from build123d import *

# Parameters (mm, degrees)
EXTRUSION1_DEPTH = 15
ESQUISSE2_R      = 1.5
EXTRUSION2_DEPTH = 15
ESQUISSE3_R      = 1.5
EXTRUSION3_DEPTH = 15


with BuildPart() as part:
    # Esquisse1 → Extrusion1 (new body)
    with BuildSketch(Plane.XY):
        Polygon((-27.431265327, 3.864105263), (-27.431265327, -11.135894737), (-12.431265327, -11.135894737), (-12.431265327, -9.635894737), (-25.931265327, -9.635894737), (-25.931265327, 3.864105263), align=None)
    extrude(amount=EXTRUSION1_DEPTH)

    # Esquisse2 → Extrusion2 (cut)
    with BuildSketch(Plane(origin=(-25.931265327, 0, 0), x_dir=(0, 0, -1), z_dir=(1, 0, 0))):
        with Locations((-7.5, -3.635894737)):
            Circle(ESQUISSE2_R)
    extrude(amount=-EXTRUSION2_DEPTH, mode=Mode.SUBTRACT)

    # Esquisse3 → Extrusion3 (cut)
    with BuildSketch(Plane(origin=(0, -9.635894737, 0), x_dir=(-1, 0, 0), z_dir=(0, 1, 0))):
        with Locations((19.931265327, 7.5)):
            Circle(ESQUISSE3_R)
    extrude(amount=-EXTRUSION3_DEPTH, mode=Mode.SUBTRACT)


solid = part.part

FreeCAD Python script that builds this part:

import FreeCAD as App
import Part
import Sketcher

doc = App.newDocument("Part")
body = doc.addObject("PartDesign::Body", "Body")

sketch1 = body.newObject("Sketcher::SketchObject", "Sketch")
sketch1.AttachmentSupport = (doc.getObject("XY_Plane"), [""])
sketch1.MapMode = "FlatFace"
sketch1.addGeometry([
    Part.LineSegment(App.Vector(-27.4, 3.9, 0), App.Vector(-27.4, -11.1, 0)),
    Part.LineSegment(App.Vector(-27.4, -11.1, 0), App.Vector(-12.4, -11.1, 0)),
    Part.LineSegment(App.Vector(-12.4, -11.1, 0), App.Vector(-12.4, -9.6, 0)),
    Part.LineSegment(App.Vector(-12.4, -9.6, 0), App.Vector(-25.9, -9.6, 0)),
    Part.LineSegment(App.Vector(-25.9, -9.6, 0), App.Vector(-25.9, 3.9, 0)),
    Part.LineSegment(App.Vector(-25.9, 3.9, 0), App.Vector(-27.4, 3.9, 0)),
], False)
sketch1.addConstraint([
    Sketcher.Constraint("Coincident", 0, 2, 1, 1),
    Sketcher.Constraint("Coincident", 1, 2, 2, 1),
    Sketcher.Constraint("Coincident", 2, 2, 3, 1),
    Sketcher.Constraint("Coincident", 3, 2, 4, 1),
    Sketcher.Constraint("Coincident", 4, 2, 5, 1),
    Sketcher.Constraint("Coincident", 5, 2, 0, 1),
    Sketcher.Constraint("Vertical", 0),
    Sketcher.Constraint("Horizontal", 1),
    Sketcher.Constraint("Vertical", 2),
    Sketcher.Constraint("Horizontal", 3),
    Sketcher.Constraint("Vertical", 4),
    Sketcher.Constraint("Horizontal", 5),
    Sketcher.Constraint("Equal", 1, 0),
    Sketcher.Constraint("Equal", 5, 2),
    Sketcher.Constraint("DistanceX", 1, 1, 1, 2, 15.0),
    Sketcher.Constraint("DistanceX", 3, 2, 3, 1, 13.5),
    Sketcher.Constraint("DistanceX", 0, 2, -1, 1, 27.431265),
    Sketcher.Constraint("DistanceY", 0, 2, -1, 1, 11.135895),
])
pad1 = body.newObject("PartDesign::Pad", "Pad")
pad1.Profile = sketch1
pad1.Length = 15

sketch2 = body.newObject("Sketcher::SketchObject", "Sketch001")
sketch2.AttachmentSupport = (doc.getObject("YZ_Plane"), [""])
sketch2.MapMode = "FlatFace"
sketch2.AttachmentOffset = App.Placement(App.Vector(0, 0, -25.931265), App.Rotation())
sketch2.addGeometry(Part.Circle(App.Vector(-3.6, 7.5, 0), App.Vector(0, 0, 1), 1.5), False)
sketch2.addConstraint([
    Sketcher.Constraint("Diameter", 0, 3.0),
    Sketcher.Constraint("DistanceY", -1, 1, 0, 3, 7.5),
    Sketcher.Constraint("DistanceX", 0, 3, -1, 1, 3.635895),
])
pocket1 = body.newObject("PartDesign::Pocket", "Pocket")
pocket1.Profile = sketch2
pocket1.Length = 15

sketch3 = body.newObject("Sketcher::SketchObject", "Sketch002")
sketch3.AttachmentSupport = (doc.getObject("XZ_Plane"), [""])
sketch3.MapMode = "FlatFace"
sketch3.AttachmentOffset = App.Placement(App.Vector(0, 0, 9.635895), App.Rotation())
sketch3.addGeometry(Part.Circle(App.Vector(-19.9, 7.5, 0), App.Vector(0, 0, 1), 1.5), False)
sketch3.addConstraint([
    Sketcher.Constraint("Diameter", 0, 3.0),
    Sketcher.Constraint("DistanceY", -1, 1, 0, 3, 7.5),
    Sketcher.Constraint("DistanceX", 0, 3, -1, 1, 19.931265),
])
pocket2 = body.newObject("PartDesign::Pocket", "Pocket001")
pocket2.Profile = sketch3
pocket2.Length = 15
pocket2.Reversed = True

doc.recompute()
